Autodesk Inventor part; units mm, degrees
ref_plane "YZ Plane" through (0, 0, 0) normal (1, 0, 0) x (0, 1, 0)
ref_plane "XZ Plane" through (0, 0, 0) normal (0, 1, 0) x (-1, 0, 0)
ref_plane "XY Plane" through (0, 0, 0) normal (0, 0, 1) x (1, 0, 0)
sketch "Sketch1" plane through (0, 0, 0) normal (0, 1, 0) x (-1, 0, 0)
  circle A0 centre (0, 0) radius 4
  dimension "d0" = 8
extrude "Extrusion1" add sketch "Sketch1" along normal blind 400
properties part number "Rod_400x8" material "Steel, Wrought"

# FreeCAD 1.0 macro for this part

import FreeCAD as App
import Part
import Sketcher

V = App.Vector

doc = App.newDocument("Part")
body = doc.addObject("PartDesign::Body", "Body")

# Sketch on XZ plane
sketch1 = body.newObject("Sketcher::SketchObject", "Sketch")
sketch1.AttachmentSupport = (doc.getObject("XZ_Plane"), [""])
sketch1.MapMode = "FlatFace"
sketch1.addGeometry(Part.Circle(V(0, 0, 0), V(0, 0, 1), 4), False)
sketch1.addConstraint(Sketcher.Constraint("Coincident", 0, 3, -1, 1))
sketch1.addConstraint(Sketcher.Constraint("Diameter", 0, 8.0))
pad1 = body.newObject("PartDesign::Pad", "Pad")
pad1.Profile = sketch1
pad1.Length = 400
pad1.Reversed = True

doc.recompute()
